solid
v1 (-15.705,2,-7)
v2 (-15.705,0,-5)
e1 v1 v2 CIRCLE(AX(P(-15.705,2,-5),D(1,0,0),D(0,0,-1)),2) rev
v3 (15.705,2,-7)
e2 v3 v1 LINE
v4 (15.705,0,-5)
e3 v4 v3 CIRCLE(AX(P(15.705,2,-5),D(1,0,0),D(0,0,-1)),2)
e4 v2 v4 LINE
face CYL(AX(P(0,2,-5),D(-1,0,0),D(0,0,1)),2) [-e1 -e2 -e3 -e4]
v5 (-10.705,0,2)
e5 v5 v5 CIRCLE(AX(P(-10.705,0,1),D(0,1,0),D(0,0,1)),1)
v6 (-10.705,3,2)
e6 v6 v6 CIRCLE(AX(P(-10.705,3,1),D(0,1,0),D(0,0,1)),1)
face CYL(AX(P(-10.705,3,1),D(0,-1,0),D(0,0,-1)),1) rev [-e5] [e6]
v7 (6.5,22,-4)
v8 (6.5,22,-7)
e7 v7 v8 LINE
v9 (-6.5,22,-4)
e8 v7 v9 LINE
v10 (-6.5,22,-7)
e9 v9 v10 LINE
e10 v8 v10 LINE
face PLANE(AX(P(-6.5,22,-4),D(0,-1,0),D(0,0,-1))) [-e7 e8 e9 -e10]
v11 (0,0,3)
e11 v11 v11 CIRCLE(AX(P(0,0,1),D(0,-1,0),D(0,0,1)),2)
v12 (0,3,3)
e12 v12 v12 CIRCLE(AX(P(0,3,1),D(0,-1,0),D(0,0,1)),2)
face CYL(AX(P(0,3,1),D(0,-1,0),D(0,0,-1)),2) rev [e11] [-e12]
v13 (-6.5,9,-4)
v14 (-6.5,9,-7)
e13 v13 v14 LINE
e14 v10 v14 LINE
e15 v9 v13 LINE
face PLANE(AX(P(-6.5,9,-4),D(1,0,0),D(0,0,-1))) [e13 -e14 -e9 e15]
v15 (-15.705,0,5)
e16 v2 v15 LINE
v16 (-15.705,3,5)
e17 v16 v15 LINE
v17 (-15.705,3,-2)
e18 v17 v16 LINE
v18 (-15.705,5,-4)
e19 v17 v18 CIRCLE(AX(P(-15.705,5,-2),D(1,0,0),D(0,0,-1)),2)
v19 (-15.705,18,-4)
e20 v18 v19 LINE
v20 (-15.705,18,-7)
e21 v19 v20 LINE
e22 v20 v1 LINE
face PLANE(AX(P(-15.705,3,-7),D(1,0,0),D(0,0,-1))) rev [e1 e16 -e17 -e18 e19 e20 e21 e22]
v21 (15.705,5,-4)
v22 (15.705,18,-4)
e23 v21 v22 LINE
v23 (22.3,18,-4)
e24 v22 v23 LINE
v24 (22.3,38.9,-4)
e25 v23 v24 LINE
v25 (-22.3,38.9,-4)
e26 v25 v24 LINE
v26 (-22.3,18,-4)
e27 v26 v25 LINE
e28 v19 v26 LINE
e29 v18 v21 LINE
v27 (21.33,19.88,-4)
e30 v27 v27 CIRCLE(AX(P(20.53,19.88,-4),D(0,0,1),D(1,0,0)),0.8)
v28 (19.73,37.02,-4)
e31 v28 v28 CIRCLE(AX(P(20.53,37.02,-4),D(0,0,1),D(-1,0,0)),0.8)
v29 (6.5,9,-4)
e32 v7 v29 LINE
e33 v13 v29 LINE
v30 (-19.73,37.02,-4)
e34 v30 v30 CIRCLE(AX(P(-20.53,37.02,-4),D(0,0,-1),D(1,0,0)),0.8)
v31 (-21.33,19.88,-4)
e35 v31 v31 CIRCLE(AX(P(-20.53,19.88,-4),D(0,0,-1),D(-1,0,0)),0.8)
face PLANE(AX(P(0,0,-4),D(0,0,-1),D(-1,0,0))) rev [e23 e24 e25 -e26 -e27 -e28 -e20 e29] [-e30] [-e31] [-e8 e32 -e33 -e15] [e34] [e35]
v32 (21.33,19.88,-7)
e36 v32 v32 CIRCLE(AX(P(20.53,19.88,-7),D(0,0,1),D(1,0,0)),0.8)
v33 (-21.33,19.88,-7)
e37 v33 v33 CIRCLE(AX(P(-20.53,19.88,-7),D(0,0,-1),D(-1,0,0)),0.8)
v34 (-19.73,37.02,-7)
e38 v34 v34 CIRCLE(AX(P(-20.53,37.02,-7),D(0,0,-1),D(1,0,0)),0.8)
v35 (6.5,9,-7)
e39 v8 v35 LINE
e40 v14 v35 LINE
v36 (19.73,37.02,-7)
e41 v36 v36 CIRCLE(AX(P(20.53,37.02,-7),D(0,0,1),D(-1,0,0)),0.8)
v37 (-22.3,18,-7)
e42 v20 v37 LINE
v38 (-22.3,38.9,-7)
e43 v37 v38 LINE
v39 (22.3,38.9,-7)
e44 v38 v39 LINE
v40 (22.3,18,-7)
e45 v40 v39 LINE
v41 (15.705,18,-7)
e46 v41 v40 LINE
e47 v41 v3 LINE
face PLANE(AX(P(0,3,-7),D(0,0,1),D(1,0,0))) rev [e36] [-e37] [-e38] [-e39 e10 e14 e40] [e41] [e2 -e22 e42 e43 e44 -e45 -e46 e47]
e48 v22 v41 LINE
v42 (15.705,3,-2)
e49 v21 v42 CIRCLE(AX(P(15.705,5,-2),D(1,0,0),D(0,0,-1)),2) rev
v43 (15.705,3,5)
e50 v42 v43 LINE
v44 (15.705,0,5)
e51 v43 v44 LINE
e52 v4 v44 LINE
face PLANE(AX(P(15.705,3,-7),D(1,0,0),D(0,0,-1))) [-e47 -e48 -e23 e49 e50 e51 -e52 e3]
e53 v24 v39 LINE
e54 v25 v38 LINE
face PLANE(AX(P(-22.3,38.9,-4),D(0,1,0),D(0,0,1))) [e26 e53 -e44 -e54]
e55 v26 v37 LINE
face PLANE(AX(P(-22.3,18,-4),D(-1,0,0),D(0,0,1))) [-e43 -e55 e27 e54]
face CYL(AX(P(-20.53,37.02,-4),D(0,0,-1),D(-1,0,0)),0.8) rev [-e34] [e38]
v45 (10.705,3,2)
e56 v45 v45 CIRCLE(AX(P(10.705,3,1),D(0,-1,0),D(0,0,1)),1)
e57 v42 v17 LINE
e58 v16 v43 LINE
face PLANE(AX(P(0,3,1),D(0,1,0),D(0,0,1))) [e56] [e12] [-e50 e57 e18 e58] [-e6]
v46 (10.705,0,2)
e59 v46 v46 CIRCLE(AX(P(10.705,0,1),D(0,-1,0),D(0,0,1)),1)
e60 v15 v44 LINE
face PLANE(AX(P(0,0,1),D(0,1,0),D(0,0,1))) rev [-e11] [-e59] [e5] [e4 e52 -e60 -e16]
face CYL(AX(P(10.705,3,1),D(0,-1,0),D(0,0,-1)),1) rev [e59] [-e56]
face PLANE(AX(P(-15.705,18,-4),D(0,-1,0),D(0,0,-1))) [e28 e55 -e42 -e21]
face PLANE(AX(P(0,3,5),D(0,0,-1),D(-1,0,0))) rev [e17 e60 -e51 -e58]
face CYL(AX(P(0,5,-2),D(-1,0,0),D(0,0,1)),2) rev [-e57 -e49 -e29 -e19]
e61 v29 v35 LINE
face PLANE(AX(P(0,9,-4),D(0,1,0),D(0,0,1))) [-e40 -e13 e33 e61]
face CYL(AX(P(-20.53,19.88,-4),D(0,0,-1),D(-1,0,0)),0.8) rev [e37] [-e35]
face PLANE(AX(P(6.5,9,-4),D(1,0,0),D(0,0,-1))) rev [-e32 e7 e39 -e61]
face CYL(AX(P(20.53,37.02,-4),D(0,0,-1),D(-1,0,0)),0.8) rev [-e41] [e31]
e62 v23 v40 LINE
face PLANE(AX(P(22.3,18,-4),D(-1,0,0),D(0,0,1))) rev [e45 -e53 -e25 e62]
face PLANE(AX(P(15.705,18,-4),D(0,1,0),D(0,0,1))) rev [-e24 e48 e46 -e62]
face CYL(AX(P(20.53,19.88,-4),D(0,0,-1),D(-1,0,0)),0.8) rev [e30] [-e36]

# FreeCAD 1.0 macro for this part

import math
import FreeCAD as App
import Part
import Sketcher
from FreeCAD import Vector


def edges_at(feature, points):
    """Names of the edges that pass closest to the given points."""
    edges = feature.Shape.Edges
    near = lambda p: min(range(len(edges)), key=lambda i: edges[i].distToShape(Part.Vertex(*p))[0])
    return sorted({f"Edge{near(p) + 1}" for p in points})

doc = App.newDocument("Part")
body = doc.addObject("PartDesign::Body", "Body")

# Sketch on XZ plane
sketch1 = body.newObject("Sketcher::SketchObject", "Sketch")
sketch1.AttachmentSupport = (doc.getObject("XZ_Plane"), [""])
sketch1.MapMode = "FlatFace"
sketch1.addGeometry(Part.LineSegment(Vector(0, 5, 0), Vector(0, 3, 0)), False)
sketch1.addGeometry(Part.ArcOfCircle(Part.Circle(Vector(0, 1, 0), Vector(0, 0, 1), 2), math.radians(90), math.radians(270)), False)
sketch1.addGeometry(Part.LineSegment(Vector(0, -1, 0), Vector(0, -7, 0)), False)
sketch1.addGeometry(Part.LineSegment(Vector(0, -7, 0), Vector(-15.7, -7, 0)), False)
sketch1.addGeometry(Part.LineSegment(Vector(-15.7, -7, 0), Vector(-15.7, 5, 0)), False)
sketch1.addGeometry(Part.LineSegment(Vector(-15.7, 5, 0), Vector(0, 5, 0)), False)
sketch1.addGeometry(Part.Circle(Vector(-10.7, 1, 0), Vector(0, 0, 1), 1), False)
sketch1.addConstraint(Sketcher.Constraint("Coincident", 0, 2, 1, 1))
sketch1.addConstraint(Sketcher.Constraint("Coincident", 1, 2, 2, 1))
sketch1.addConstraint(Sketcher.Constraint("Coincident", 2, 2, 3, 1))
sketch1.addConstraint(Sketcher.Constraint("Coincident", 3, 2, 4, 1))
sketch1.addConstraint(Sketcher.Constraint("Coincident", 4, 2, 5, 1))
sketch1.addConstraint(Sketcher.Constraint("Coincident", 5, 2, 0, 1))
sketch1.addConstraint(Sketcher.Constraint("Vertical", 0))
sketch1.addConstraint(Sketcher.Constraint("Vertical", 2))
sketch1.addConstraint(Sketcher.Constraint("Horizontal", 3))
sketch1.addConstraint(Sketcher.Constraint("Vertical", 4))
sketch1.addConstraint(Sketcher.Constraint("Horizontal", 5))
sketch1.addConstraint(Sketcher.Constraint("PointOnObject", 1, 3, -2))
sketch1.addConstraint(Sketcher.Constraint("PointOnObject", 0, 2, -2))
sketch1.addConstraint(Sketcher.Constraint("PointOnObject", 1, 2, -2))
sketch1.addConstraint(Sketcher.Constraint("Horizontal", 1, 3, 6, 3))
sketch1.addConstraint(Sketcher.Constraint("Diameter", 6, 2.0))
sketch1.addConstraint(Sketcher.Constraint("Radius", 1, 2.0))
sketch1.addConstraint(Sketcher.Constraint("DistanceY", 0, 2, 0, 1, 2.0))
sketch1.addConstraint(Sketcher.Constraint("DistanceY", 2, 2, 2, 1, 6.0))
sketch1.addConstraint(Sketcher.Constraint("DistanceY", -1, 1, 1, 3, 1.0))
sketch1.addConstraint(Sketcher.Constraint("DistanceX", 3, 2, 6, 3, 5.0))
sketch1.addConstraint(Sketcher.Constraint("DistanceX", 3, 2, 3, 1, 15.705))
pad1 = body.newObject("PartDesign::Pad", "Pad")
pad1.Profile = sketch1
pad1.Length = 3
pad1.Reversed = True

# Sketch on XY plane
sketch2 = body.newObject("Sketcher::SketchObject", "Sketch001")
sketch2.AttachmentSupport = (doc.getObject("XY_Plane"), [""])
sketch2.MapMode = "FlatFace"
sketch2.AttachmentOffset = App.Placement(Vector(0, 0, -7), App.Rotation())
sketch2.addGeometry(Part.LineSegment(Vector(-15.7, 3, 0), Vector(-15.7, 18, 0)), False)
sketch2.addGeometry(Part.LineSegment(Vector(-15.7, 18, 0), Vector(-22.3, 18, 0)), False)
sketch2.addGeometry(Part.LineSegment(Vector(-22.3, 18, 0), Vector(-22.3, 38.9, 0)), False)
sketch2.addGeometry(Part.LineSegment(Vector(-22.3, 38.9, 0), Vector(0, 38.9, 0)), False)
sketch2.addGeometry(Part.LineSegment(Vector(0, 38.9, 0), Vector(0, 22, 0)), False)
sketch2.addGeometry(Part.LineSegment(Vector(0, 22, 0), Vector(-6.5, 22, 0)), False)
sketch2.addGeometry(Part.LineSegment(Vector(-6.5, 22, 0), Vector(-6.5, 9, 0)), False)
sketch2.addGeometry(Part.LineSegment(Vector(-6.5, 9, 0), Vector(0, 9, 0)), False)
sketch2.addGeometry(Part.LineSegment(Vector(0, 9, 0), Vector(0, 3, 0)), False)
sketch2.addGeometry(Part.LineSegment(Vector(0, 3, 0), Vector(-15.7, 3, 0)), False)
sketch2.addGeometry(Part.Circle(Vector(-20.5, 19.9, 0), Vector(0, 0, 1), 0.8), False)
sketch2.addGeometry(Part.Circle(Vector(-20.5, 37, 0), Vector(0, 0, 1), 0.8), False)
sketch2.addConstraint(Sketcher.Constraint("Coincident", 0, 2, 1, 1))
sketch2.addConstraint(Sketcher.Constraint("Coincident", 1, 2, 2, 1))
sketch2.addConstraint(Sketcher.Constraint("Coincident", 2, 2, 3, 1))
sketch2.addConstraint(Sketcher.Constraint("Coincident", 3, 2, 4, 1))
sketch2.addConstraint(Sketcher.Constraint("Coincident", 4, 2, 5, 1))
sketch2.addConstraint(Sketcher.Constraint("Coincident", 5, 2, 6, 1))
sketch2.addConstraint(Sketcher.Constraint("Coincident", 6, 2, 7, 1))
sketch2.addConstraint(Sketcher.Constraint("Coincident", 7, 2, 8, 1))
sketch2.addConstraint(Sketcher.Constraint("Coincident", 8, 2, 9, 1))
sketch2.addConstraint(Sketcher.Constraint("Coincident", 9, 2, 0, 1))
sketch2.addConstraint(Sketcher.Constraint("Vertical", 0))
sketch2.addConstraint(Sketcher.Constraint("Horizontal", 1))
sketch2.addConstraint(Sketcher.Constraint("Vertical", 2))
sketch2.addConstraint(Sketcher.Constraint("Horizontal", 3))
sketch2.addConstraint(Sketcher.Constraint("Vertical", 4))
sketch2.addConstraint(Sketcher.Constraint("Horizontal", 5))
sketch2.addConstraint(Sketcher.Constraint("Vertical", 6))
sketch2.addConstraint(Sketcher.Constraint("Horizontal", 7))
sketch2.addConstraint(Sketcher.Constraint("Vertical", 8))
sketch2.addConstraint(Sketcher.Constraint("Horizontal", 9))
sketch2.addConstraint(Sketcher.Constraint("Equal", 10, 11))
sketch2.addConstraint(Sketcher.Constraint("PointOnObject", 3, 2, -2))
sketch2.addConstraint(Sketcher.Constraint("PointOnObject", 7, 2, -2))
sketch2.addConstraint(Sketcher.Constraint("Vertical", 10, 3, 11, 3))
sketch2.addConstraint(Sketcher.Constraint("Diameter", 10, 1.6))
sketch2.addConstraint(Sketcher.Constraint("DistanceY", 0, 1, 0, 2, 15.0))
sketch2.addConstraint(Sketcher.Constraint("DistanceY", 6, 2, 6, 1, 13.0))
sketch2.addConstraint(Sketcher.Constraint("DistanceY", 8, 2, 8, 1, 6.0))
sketch2.addConstraint(Sketcher.Constraint("DistanceX", 3, 1, 3, 2, 22.3))
sketch2.addConstraint(Sketcher.Constraint("DistanceX", 5, 2, 5, 1, 6.5))
sketch2.addConstraint(Sketcher.Constraint("DistanceY", 2, 1, 2, 2, 20.9))
sketch2.addConstraint(Sketcher.Constraint("DistanceY", -1, 1, 0, 2, 18.0))
sketch2.addConstraint(Sketcher.Constraint("DistanceX", 1, 2, 1, 1, 6.595))
sketch2.addConstraint(Sketcher.Constraint("DistanceX", 10, 3, -1, 1, 20.53))
sketch2.addConstraint(Sketcher.Constraint("DistanceY", -1, 1, 10, 3, 19.88))
sketch2.addConstraint(Sketcher.Constraint("DistanceY", -1, 1, 11, 3, 37.02))
pad2 = body.newObject("PartDesign::Pad", "Pad001")
pad2.Profile = sketch2
pad2.Length = 3
doc.recompute()

mirrored = body.newObject("PartDesign::Mirrored", "Mirrored")
mirrored.Originals = [pad1, pad2]
mirrored.MirrorPlane = (doc.getObject("YZ_Plane"), [""])
body.Tip = mirrored
doc.recompute()

fillet = body.newObject("PartDesign::Fillet", "Fillet")
fillet.Base = (mirrored, edges_at(mirrored, [(0, 3, -4), (0, 0, -7)]))
fillet.Radius = 2

doc.recompute()
